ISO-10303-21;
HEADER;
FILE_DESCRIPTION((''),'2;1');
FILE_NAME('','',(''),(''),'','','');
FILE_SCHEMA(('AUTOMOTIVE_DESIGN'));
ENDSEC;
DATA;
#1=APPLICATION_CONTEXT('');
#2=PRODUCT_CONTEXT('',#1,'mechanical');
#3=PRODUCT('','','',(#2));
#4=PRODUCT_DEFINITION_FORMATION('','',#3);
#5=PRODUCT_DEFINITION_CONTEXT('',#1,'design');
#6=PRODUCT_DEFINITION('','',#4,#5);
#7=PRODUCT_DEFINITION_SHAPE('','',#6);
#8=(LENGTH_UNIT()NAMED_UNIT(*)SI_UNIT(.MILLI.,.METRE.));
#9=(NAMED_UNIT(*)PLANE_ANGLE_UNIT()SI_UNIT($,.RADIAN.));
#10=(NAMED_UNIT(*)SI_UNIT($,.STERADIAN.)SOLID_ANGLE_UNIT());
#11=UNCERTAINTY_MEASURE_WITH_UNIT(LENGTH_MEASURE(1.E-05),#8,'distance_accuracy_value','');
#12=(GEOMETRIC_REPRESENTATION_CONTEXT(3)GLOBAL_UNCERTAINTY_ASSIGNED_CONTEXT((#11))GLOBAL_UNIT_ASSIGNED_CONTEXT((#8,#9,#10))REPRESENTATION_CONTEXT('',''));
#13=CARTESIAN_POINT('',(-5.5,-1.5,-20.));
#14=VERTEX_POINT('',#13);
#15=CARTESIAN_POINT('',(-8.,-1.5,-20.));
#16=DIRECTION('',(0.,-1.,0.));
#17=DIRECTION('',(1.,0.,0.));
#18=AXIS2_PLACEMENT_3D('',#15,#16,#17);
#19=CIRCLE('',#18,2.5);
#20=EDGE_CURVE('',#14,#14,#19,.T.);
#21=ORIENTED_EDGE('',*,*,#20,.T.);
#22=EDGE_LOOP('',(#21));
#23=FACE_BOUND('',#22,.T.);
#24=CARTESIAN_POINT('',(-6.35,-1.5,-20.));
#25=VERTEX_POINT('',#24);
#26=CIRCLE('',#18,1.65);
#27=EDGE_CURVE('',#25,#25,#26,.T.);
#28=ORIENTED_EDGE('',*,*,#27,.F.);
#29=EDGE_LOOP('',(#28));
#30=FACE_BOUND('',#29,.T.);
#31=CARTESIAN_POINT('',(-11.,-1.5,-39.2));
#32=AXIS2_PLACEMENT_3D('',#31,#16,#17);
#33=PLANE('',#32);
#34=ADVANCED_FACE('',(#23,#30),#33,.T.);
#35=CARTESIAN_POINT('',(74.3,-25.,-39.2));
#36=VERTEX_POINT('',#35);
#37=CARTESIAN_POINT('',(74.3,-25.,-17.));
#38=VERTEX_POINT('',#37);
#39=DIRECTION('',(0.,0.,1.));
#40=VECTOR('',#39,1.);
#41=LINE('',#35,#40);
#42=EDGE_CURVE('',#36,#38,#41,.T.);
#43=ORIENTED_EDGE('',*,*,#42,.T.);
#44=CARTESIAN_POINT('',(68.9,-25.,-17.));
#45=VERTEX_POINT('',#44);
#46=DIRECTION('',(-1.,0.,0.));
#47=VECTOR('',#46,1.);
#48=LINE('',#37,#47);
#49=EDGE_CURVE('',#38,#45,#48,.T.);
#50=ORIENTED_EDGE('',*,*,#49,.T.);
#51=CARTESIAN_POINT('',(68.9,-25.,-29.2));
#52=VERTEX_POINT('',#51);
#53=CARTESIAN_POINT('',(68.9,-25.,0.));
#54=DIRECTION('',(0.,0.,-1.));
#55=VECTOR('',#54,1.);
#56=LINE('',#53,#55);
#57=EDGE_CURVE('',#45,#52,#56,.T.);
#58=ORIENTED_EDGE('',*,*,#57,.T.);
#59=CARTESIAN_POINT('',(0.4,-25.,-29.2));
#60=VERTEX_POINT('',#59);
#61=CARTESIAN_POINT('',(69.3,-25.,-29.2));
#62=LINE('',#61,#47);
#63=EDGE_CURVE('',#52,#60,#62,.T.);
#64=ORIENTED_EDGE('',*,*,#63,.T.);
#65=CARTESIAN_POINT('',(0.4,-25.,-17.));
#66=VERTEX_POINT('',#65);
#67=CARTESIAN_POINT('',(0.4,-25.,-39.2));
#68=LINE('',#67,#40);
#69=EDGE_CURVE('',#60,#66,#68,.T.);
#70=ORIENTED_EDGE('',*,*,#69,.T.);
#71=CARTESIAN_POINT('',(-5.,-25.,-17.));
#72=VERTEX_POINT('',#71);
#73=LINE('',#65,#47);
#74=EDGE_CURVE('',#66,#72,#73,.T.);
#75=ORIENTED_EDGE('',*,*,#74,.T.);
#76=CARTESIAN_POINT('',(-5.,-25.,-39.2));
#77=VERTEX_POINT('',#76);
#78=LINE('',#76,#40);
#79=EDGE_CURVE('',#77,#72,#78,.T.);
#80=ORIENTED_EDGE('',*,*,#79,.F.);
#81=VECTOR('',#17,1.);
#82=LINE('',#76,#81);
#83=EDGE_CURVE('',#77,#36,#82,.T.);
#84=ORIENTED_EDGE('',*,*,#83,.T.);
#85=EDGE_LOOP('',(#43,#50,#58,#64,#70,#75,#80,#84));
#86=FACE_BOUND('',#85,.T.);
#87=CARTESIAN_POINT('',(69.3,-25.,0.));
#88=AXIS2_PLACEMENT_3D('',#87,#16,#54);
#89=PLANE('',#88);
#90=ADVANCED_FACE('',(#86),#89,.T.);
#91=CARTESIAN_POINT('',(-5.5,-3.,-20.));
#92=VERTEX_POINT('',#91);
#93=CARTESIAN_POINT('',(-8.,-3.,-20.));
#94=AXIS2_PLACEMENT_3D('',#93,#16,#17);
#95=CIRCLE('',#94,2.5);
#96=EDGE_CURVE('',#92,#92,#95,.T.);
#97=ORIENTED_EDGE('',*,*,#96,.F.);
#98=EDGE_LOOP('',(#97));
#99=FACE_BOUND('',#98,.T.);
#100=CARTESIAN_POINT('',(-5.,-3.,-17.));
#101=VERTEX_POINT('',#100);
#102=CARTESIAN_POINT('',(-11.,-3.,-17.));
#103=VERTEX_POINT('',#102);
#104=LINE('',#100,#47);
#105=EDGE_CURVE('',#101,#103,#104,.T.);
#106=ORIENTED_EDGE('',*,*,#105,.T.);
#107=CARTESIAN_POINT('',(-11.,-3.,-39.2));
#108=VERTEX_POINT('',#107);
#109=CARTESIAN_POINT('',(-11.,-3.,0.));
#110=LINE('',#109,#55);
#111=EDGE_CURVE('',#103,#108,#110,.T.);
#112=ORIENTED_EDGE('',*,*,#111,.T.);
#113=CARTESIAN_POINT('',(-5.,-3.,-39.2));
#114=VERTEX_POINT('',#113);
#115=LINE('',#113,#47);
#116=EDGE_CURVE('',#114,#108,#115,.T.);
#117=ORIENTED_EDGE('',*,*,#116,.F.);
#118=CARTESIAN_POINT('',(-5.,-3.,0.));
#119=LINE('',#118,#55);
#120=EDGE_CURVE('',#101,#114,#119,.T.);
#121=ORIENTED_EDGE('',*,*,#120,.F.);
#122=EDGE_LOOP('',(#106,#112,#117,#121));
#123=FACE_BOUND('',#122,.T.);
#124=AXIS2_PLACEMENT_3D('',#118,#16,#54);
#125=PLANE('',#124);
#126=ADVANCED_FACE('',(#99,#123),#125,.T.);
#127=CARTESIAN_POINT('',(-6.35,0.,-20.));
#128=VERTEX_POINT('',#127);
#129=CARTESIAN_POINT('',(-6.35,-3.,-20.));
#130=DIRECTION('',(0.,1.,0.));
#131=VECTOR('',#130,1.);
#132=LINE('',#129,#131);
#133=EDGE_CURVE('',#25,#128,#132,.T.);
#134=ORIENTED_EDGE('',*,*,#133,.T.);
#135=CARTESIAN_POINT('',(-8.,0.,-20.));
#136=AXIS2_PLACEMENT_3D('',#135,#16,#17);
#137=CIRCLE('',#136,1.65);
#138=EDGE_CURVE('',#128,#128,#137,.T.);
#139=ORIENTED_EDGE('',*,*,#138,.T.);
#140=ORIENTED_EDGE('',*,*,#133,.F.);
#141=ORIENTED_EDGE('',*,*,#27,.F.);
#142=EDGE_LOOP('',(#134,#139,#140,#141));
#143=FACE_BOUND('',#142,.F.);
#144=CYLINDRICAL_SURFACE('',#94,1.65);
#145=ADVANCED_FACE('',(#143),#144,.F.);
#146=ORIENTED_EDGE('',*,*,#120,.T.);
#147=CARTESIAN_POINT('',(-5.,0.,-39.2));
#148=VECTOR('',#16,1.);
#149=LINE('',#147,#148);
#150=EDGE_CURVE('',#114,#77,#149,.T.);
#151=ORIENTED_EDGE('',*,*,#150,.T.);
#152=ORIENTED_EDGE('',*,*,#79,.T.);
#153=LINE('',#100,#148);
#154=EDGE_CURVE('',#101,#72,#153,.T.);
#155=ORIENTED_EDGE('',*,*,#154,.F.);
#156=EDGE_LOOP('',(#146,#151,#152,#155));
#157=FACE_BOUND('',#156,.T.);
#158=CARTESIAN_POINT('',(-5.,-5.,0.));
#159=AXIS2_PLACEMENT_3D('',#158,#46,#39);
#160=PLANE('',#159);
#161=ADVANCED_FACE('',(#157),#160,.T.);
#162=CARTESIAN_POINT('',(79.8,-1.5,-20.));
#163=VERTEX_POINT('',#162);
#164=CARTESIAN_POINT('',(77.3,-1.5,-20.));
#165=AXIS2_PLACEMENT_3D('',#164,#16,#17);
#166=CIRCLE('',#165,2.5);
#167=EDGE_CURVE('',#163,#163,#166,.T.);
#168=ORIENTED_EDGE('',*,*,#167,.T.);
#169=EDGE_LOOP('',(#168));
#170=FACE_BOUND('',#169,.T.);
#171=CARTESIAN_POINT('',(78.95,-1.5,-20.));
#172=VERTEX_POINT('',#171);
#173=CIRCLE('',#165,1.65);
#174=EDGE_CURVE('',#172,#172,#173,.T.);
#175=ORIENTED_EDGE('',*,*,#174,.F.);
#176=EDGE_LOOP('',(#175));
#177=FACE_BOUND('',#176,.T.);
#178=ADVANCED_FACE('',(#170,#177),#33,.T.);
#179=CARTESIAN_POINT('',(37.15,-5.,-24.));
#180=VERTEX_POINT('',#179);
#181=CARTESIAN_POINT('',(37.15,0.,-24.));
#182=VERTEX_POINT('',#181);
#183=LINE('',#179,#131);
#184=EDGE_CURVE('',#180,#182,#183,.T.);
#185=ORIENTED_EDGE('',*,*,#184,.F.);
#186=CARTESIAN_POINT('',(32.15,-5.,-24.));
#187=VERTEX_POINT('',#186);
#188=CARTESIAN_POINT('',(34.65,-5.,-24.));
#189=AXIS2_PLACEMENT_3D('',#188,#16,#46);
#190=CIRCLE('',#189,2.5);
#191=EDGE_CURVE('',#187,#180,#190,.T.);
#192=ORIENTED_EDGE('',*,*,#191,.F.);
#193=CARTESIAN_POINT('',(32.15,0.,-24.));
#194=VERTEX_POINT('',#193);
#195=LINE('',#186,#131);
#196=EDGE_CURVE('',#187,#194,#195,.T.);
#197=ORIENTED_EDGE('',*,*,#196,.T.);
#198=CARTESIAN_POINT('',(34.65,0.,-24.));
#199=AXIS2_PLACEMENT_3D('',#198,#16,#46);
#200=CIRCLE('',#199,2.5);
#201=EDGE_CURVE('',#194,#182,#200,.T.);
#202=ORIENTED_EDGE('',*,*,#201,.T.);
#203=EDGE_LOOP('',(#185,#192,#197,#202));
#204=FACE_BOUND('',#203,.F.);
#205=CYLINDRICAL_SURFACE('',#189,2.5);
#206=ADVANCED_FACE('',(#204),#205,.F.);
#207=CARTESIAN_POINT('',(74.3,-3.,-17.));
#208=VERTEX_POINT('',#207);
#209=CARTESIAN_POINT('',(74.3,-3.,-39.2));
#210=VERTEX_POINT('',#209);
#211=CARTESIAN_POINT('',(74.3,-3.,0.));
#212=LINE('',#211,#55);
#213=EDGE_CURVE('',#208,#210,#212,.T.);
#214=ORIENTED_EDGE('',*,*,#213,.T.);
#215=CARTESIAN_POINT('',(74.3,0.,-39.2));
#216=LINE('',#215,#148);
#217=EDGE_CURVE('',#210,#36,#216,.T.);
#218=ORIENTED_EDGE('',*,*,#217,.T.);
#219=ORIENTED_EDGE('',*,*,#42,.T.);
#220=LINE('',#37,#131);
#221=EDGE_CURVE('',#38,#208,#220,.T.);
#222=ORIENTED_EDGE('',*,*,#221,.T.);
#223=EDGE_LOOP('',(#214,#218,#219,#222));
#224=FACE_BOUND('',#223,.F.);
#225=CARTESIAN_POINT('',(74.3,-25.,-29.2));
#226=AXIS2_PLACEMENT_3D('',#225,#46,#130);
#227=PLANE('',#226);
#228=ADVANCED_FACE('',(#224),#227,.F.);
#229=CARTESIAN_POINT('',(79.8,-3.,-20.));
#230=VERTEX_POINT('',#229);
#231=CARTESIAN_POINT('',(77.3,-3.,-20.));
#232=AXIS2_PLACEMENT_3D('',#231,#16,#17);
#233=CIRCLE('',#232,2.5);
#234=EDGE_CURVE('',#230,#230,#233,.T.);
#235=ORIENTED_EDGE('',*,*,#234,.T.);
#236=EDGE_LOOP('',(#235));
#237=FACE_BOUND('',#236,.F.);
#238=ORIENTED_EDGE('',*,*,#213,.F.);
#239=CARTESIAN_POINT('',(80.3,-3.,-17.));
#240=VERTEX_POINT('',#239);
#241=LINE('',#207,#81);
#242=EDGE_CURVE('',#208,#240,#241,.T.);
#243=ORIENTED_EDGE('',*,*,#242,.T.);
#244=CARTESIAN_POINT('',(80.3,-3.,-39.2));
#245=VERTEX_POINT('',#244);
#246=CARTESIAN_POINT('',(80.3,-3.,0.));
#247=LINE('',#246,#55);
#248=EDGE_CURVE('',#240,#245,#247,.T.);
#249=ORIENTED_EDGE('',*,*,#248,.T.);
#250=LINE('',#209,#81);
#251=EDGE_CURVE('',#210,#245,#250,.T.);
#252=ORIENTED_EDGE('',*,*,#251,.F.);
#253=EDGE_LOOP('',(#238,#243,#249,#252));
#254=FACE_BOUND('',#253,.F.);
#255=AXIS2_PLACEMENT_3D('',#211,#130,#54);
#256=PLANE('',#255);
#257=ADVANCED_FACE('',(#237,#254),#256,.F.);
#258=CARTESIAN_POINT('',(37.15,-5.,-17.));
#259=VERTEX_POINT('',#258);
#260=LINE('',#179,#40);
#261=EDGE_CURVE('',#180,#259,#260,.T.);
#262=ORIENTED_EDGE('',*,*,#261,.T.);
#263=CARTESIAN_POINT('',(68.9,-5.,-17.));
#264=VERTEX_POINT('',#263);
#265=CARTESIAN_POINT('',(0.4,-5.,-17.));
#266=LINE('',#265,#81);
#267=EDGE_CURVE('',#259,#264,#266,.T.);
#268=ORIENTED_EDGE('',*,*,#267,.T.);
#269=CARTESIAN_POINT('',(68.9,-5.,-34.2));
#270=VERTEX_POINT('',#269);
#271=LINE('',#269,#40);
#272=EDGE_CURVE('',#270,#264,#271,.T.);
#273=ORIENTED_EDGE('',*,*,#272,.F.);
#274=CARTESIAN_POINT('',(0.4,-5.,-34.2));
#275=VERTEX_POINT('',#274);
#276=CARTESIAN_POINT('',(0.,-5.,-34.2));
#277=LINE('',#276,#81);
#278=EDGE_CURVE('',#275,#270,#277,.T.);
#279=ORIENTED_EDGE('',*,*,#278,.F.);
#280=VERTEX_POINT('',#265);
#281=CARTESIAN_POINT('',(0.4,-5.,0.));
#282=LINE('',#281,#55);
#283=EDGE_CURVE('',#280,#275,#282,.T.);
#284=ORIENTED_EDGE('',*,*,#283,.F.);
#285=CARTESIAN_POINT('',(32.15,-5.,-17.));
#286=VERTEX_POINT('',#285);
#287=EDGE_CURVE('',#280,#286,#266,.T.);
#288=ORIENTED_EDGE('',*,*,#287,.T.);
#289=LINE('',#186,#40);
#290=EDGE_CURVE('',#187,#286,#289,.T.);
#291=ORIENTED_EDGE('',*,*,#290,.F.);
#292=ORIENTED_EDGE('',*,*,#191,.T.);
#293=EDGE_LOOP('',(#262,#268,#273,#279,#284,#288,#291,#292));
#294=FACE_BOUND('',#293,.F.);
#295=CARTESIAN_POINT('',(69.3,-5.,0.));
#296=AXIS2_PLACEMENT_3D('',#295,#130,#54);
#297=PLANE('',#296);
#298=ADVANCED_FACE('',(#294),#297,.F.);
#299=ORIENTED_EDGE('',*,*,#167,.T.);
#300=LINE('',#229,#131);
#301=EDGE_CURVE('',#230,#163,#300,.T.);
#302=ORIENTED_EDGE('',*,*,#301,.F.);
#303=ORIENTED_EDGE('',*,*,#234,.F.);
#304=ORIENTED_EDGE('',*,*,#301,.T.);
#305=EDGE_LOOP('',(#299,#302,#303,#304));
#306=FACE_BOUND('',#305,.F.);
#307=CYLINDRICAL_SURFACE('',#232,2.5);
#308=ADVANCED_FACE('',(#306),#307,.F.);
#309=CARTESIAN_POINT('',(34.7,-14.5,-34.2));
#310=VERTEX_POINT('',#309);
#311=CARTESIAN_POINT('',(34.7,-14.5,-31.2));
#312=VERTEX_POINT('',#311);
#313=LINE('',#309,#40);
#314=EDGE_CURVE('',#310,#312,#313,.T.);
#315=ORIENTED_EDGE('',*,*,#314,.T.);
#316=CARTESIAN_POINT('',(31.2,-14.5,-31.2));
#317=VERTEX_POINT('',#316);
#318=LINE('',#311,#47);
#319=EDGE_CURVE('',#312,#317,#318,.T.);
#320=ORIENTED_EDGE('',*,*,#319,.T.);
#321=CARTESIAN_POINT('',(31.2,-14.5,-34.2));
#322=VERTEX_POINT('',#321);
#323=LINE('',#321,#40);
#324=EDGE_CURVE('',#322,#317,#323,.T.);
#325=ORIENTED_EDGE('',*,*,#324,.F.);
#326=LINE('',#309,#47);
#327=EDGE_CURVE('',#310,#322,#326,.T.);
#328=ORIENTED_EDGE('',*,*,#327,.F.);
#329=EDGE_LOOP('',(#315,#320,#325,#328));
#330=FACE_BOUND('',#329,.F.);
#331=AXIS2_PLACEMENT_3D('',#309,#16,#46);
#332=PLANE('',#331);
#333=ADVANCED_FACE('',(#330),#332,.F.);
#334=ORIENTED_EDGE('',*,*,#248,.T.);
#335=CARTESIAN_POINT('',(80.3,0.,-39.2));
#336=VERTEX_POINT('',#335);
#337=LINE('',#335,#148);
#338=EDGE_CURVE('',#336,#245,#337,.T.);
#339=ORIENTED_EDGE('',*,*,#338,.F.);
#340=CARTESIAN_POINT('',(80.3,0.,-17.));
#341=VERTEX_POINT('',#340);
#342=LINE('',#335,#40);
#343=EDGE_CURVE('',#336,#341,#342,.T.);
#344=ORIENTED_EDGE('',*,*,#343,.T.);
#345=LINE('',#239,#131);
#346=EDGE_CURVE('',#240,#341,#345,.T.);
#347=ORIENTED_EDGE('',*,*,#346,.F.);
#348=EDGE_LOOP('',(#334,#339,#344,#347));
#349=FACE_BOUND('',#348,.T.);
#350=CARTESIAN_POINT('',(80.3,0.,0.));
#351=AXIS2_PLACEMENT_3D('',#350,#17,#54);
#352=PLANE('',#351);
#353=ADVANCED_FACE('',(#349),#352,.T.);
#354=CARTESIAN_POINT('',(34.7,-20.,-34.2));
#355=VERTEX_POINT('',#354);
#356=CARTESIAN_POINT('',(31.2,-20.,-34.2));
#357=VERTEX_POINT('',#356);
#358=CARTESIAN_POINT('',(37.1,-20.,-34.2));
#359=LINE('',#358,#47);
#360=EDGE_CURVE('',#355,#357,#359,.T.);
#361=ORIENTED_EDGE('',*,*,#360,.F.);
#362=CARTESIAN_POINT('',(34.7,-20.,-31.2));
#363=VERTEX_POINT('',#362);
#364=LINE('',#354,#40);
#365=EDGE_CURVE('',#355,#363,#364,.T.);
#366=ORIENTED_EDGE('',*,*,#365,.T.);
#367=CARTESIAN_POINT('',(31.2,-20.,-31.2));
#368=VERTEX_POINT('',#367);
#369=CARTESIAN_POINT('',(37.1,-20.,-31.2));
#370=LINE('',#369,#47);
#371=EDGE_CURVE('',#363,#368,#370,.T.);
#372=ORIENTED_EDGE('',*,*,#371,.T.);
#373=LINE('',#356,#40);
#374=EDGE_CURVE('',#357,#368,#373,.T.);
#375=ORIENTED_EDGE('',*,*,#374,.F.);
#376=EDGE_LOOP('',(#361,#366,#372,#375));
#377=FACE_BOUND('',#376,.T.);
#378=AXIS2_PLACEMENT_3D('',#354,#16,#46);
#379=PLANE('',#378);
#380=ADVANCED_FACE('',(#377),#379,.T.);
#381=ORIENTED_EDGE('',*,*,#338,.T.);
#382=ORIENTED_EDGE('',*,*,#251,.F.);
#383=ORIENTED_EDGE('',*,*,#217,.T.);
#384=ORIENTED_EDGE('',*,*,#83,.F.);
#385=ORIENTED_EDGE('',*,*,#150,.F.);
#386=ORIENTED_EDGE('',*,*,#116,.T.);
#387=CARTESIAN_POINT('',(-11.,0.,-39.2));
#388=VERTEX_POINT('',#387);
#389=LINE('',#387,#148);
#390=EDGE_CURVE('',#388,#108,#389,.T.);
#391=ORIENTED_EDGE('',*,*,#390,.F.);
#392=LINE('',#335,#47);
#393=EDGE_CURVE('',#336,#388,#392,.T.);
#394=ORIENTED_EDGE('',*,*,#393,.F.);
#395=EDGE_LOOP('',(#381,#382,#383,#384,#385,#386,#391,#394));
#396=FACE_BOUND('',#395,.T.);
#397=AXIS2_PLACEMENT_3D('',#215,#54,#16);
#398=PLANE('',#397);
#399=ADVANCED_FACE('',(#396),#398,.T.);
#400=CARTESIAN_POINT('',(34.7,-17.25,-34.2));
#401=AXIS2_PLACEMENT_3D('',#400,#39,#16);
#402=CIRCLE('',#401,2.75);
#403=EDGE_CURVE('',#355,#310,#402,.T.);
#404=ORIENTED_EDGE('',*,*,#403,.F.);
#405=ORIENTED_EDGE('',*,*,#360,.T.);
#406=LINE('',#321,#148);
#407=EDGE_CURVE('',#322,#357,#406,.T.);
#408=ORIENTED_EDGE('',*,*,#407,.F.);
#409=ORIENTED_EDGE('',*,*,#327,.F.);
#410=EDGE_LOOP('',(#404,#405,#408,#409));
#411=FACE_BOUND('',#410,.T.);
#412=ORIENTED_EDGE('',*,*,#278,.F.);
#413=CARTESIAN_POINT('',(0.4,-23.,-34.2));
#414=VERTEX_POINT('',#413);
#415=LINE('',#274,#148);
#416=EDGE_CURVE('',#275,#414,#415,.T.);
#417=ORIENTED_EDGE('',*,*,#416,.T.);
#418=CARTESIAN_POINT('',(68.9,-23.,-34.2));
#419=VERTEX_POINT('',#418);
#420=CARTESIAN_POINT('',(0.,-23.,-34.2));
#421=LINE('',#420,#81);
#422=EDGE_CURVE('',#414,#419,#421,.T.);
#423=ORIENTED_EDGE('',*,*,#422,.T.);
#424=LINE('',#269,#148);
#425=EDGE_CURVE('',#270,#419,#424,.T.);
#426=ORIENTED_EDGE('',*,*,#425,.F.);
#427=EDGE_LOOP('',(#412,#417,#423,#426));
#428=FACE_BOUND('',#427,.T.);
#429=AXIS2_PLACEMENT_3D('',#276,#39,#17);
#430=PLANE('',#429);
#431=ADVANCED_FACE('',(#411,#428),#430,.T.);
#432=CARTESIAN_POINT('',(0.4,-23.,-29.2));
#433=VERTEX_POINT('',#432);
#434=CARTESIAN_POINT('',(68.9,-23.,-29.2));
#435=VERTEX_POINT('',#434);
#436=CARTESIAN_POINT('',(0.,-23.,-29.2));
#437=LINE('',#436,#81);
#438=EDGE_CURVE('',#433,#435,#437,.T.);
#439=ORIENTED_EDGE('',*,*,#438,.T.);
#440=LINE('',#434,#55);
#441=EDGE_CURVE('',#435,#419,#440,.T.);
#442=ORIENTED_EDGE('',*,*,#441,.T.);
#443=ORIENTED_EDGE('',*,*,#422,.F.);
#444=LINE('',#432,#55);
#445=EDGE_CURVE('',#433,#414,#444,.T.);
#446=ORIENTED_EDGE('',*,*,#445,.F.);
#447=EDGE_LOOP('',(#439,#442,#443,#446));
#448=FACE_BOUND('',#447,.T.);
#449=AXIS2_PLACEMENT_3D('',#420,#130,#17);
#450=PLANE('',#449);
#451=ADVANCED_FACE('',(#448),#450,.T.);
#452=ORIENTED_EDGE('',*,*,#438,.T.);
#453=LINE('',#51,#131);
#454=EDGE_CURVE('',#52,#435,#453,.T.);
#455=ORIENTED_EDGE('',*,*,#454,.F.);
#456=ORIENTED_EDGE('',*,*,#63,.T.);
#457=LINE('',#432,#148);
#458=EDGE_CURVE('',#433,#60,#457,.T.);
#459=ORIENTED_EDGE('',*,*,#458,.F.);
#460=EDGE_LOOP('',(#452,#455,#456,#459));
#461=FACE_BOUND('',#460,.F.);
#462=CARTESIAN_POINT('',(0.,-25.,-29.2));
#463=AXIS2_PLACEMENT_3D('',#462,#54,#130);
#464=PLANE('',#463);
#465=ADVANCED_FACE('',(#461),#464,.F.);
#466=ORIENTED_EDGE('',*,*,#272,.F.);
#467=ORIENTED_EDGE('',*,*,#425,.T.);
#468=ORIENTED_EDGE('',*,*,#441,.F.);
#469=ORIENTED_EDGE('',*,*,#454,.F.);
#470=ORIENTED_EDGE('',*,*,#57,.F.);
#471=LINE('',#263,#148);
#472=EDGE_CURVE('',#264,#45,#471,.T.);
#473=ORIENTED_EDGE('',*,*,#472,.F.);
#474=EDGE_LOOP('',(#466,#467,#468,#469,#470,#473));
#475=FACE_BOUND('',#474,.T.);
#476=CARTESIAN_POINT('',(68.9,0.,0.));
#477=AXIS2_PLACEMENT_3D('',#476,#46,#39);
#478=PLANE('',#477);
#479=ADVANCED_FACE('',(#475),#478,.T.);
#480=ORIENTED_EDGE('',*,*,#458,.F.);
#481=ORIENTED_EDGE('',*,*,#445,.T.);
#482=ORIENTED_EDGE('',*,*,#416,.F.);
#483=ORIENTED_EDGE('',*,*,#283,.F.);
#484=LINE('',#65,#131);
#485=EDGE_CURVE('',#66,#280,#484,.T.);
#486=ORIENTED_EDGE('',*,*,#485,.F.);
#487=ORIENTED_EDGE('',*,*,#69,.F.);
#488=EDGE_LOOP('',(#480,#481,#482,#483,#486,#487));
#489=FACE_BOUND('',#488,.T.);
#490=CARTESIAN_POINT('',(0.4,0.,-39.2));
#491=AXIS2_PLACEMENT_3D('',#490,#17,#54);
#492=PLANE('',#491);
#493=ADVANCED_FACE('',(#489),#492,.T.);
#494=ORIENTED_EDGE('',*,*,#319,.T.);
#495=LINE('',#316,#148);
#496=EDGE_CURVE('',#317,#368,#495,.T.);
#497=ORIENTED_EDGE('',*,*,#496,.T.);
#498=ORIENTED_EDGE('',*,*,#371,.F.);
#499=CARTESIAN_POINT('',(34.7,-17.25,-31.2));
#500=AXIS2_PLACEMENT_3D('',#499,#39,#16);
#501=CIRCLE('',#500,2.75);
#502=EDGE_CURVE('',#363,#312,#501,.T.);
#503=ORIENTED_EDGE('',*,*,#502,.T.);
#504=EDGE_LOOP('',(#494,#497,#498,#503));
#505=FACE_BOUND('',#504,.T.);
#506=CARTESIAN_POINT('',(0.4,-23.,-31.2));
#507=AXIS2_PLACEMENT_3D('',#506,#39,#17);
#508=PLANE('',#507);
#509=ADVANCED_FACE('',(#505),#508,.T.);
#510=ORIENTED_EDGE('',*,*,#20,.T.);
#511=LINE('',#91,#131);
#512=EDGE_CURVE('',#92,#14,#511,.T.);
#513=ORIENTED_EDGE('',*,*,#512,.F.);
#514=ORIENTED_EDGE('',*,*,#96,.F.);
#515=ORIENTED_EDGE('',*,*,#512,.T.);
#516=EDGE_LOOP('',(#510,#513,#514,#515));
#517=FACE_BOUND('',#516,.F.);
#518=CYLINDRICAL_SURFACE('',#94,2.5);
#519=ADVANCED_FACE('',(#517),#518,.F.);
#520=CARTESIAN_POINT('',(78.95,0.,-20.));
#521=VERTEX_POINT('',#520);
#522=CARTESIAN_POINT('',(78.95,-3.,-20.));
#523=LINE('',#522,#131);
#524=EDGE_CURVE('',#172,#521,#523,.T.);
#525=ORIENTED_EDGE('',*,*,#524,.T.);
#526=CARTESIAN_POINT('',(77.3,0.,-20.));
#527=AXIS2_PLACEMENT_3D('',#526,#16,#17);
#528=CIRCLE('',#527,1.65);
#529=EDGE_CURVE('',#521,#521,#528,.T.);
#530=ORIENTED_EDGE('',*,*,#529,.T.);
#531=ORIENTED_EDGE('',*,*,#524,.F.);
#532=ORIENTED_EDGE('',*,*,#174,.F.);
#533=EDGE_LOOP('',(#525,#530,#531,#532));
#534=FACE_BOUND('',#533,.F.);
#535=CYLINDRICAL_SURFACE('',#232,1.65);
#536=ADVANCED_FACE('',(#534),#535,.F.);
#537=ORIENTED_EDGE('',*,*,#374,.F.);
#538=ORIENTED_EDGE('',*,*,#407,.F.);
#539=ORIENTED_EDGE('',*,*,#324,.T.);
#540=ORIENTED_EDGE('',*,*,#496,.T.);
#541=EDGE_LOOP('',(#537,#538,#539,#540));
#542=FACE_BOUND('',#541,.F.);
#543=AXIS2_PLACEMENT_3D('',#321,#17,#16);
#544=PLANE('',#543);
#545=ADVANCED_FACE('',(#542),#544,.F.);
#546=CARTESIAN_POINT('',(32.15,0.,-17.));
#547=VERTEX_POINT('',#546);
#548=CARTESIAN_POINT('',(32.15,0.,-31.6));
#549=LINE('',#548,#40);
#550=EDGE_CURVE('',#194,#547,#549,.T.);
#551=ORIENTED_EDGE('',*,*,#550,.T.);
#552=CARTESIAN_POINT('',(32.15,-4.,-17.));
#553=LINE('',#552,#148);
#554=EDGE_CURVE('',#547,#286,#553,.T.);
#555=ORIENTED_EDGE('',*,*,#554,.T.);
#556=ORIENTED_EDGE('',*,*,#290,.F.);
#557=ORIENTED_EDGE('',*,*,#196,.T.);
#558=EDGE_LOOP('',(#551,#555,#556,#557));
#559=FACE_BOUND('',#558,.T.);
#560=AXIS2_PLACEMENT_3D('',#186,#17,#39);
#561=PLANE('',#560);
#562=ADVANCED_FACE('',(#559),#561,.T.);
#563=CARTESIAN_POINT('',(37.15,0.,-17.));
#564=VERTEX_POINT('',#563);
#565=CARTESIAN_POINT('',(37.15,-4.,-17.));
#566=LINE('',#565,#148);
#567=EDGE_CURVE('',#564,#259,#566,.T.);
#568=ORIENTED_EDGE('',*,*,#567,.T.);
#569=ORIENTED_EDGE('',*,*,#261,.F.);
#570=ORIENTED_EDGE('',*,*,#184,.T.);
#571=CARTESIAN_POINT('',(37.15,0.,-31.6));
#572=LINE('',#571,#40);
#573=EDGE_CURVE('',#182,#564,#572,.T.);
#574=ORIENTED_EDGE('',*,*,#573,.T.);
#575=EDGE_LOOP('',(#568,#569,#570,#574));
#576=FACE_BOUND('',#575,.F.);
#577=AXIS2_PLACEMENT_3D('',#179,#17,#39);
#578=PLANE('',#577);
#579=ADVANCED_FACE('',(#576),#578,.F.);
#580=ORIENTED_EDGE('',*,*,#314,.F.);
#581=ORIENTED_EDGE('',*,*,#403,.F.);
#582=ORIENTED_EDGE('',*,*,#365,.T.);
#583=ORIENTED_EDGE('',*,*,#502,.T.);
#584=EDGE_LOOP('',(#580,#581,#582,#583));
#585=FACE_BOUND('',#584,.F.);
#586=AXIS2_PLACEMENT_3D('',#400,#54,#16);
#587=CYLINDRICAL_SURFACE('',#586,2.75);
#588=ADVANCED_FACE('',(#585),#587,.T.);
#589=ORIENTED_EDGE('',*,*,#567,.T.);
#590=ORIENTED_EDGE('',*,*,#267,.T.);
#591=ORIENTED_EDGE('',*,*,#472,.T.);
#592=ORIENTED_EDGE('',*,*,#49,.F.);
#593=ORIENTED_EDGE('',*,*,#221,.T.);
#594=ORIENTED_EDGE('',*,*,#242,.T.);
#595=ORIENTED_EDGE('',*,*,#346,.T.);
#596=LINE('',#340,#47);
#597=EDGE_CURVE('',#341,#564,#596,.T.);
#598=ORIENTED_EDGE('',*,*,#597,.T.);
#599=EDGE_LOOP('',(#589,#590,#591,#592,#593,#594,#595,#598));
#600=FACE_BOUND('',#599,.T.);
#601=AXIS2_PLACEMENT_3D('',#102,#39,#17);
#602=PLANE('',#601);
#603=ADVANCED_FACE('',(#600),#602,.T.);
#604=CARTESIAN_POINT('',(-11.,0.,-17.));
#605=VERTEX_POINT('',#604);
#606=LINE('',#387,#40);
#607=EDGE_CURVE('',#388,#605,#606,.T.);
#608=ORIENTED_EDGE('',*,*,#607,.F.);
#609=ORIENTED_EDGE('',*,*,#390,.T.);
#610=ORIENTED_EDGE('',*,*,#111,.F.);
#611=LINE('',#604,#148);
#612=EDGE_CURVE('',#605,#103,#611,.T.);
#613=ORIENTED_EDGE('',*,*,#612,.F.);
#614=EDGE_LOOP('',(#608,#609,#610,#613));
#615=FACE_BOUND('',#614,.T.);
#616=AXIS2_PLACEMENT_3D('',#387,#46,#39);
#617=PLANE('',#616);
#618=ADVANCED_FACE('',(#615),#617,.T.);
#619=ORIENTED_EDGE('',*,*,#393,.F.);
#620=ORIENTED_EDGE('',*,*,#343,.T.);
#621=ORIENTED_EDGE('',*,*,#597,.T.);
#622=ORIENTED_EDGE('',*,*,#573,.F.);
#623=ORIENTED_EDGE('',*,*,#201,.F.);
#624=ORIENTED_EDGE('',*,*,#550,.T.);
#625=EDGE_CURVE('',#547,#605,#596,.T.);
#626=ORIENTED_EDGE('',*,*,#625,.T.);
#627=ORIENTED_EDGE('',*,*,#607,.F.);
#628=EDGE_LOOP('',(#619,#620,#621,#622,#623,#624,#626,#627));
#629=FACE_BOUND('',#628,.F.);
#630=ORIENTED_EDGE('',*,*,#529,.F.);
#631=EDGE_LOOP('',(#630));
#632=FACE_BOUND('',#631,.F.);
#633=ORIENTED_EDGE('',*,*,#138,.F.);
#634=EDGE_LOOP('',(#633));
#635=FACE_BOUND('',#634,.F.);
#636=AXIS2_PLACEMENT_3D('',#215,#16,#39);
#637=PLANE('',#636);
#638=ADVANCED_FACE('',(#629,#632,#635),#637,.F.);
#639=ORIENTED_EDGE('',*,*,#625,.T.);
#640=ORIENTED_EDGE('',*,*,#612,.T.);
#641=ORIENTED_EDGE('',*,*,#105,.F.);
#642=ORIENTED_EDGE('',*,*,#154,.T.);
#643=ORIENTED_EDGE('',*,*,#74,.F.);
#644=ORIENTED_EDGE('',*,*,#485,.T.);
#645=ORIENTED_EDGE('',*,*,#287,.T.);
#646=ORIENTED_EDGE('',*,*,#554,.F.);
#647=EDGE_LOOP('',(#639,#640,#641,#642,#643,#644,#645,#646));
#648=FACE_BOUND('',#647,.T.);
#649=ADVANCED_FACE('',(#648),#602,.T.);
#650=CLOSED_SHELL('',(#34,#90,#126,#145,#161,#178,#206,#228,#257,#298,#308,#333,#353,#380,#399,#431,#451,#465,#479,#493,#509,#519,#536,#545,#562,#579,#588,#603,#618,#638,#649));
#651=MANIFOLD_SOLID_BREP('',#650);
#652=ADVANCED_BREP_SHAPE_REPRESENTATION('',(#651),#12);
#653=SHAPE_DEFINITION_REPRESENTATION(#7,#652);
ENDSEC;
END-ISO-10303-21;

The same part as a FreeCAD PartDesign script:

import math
import FreeCAD as App
import Part
import Sketcher

V = App.Vector
Q = App.Units.Quantity


def add_polygon(sketch, points):
    """Adds a closed chain of lines whose ends are joined by coincident constraints."""
    first, n = sketch.GeometryCount, len(points)
    for a, b in zip(points, points[1:] + points[:1]):
        sketch.addGeometry(Part.LineSegment(App.Vector(*a, 0), App.Vector(*b, 0)), False)
    for i in range(n):
        sketch.addConstraint(Sketcher.Constraint("Coincident", first + i, 2, first + (i + 1) % n, 1))

doc = App.newDocument("Part")
body = doc.addObject("PartDesign::Body", "Body")

sketch1 = doc.addObject("Sketcher::SketchObject", "Sketch")
body.addObject(sketch1)
sketch1.AttachmentSupport = (doc.XZ_Plane, [""])
sketch1.MapMode = "FlatFace"
add_polygon(sketch1, [(0, -39), (0, 0), (69, 0), (69, -39)])
sketch1.addConstraint(Sketcher.Constraint("Vertical", 0))
sketch1.addConstraint(Sketcher.Constraint("Horizontal", 1))
sketch1.addConstraint(Sketcher.Constraint("Vertical", 2))
sketch1.addConstraint(Sketcher.Constraint("Horizontal", 3))
sketch1.addConstraint(Sketcher.Constraint("Coincident", 0, 2, -1, 1))
sketch1.addConstraint(Sketcher.Constraint("DistanceX", 1, 1, 1, 2, Q("69.3 mm")))
sketch1.addConstraint(Sketcher.Constraint("DistanceY", 0, 1, 0, 2, Q("39.2 mm")))
pad1 = doc.addObject("PartDesign::Pad", "Pad")
body.addObject(pad1)
pad1.Profile = sketch1
pad1.Length = 5

sketch2 = doc.addObject("Sketcher::SketchObject", "Sketch001")
body.addObject(sketch2)
sketch2.AttachmentSupport = (doc.XZ_Plane, [""])
sketch2.MapMode = "FlatFace"
sketch2.AttachmentOffset = App.Placement(V(0, 0, 5), App.Rotation())
add_polygon(sketch2, [(69, -34), (0, -34), (0, -39), (69, -39)])
sketch2.addConstraint(Sketcher.Constraint("Horizontal", 0))
sketch2.addConstraint(Sketcher.Constraint("Vertical", 1))
sketch2.addConstraint(Sketcher.Constraint("Horizontal", 2))
sketch2.addConstraint(Sketcher.Constraint("Vertical", 3))
sketch2.addConstraint(Sketcher.Constraint("PointOnObject", 0, 2, -2))
sketch2.addConstraint(Sketcher.Constraint("DistanceY", 1, 2, 1, 1, Q("5 mm")))
sketch2.addConstraint(Sketcher.Constraint("DistanceX", 0, 2, 0, 1, Q("69.3 mm")))
sketch2.addConstraint(Sketcher.Constraint("DistanceY", 0, 2, -1, 1, Q("34.2 mm")))
pad2 = doc.addObject("PartDesign::Pad", "Pad001")
body.addObject(pad2)
pad2.Profile = sketch2
pad2.Length = 20

sketch3 = doc.addObject("Sketcher::SketchObject", "Sketch002")
body.addObject(sketch3)
sketch3.AttachmentSupport = (doc.XY_Plane, [""])
sketch3.MapMode = "FlatFace"
sketch3.AttachmentOffset = App.Placement(V(0, 0, -34.2), App.Rotation())
add_polygon(sketch3, [(69.3, -23), (0, -23), (0, -25), (69.3, -25)])
sketch3.addConstraint(Sketcher.Constraint("Horizontal", 0))
sketch3.addConstraint(Sketcher.Constraint("Vertical", 1))
sketch3.addConstraint(Sketcher.Constraint("Horizontal", 2))
sketch3.addConstraint(Sketcher.Constraint("Vertical", 3))
sketch3.addConstraint(Sketcher.Constraint("PointOnObject", 0, 2, -2))
sketch3.addConstraint(Sketcher.Constraint("DistanceY", 1, 2, 1, 1, Q("2 mm")))
sketch3.addConstraint(Sketcher.Constraint("DistanceX", 0, 2, 0, 1, Q("69.3 mm")))
sketch3.addConstraint(Sketcher.Constraint("DistanceY", 0, 2, -1, 1, Q("23 mm")))
pad3 = doc.addObject("PartDesign::Pad", "Pad002")
body.addObject(pad3)
pad3.Profile = sketch3
pad3.Length = 5

sketch4 = doc.addObject("Sketcher::SketchObject", "Sketch003")
body.addObject(sketch4)
sketch4.AttachmentSupport = (doc.YZ_Plane, [""])
sketch4.MapMode = "FlatFace"
sketch4.AttachmentOffset = App.Placement(V(0, 0, 69.3), App.Rotation())
add_polygon(sketch4, [(-25, -29), (-25, -39), (0, -39), (0, -29)])
sketch4.addConstraint(Sketcher.Constraint("Vertical", 0))
sketch4.addConstraint(Sketcher.Constraint("Horizontal", 1))
sketch4.addConstraint(Sketcher.Constraint("Vertical", 2))
sketch4.addConstraint(Sketcher.Constraint("Horizontal", 3))
sketch4.addConstraint(Sketcher.Constraint("PointOnObject", 1, 2, -2))
sketch4.addConstraint(Sketcher.Constraint("DistanceX", 1, 1, 1, 2, Q("25 mm")))
sketch4.addConstraint(Sketcher.Constraint("DistanceY", 0, 2, 0, 1, Q("10 mm")))
sketch4.addConstraint(Sketcher.Constraint("DistanceY", 0, 2, -1, 1, Q("39.2 mm")))
pad4 = doc.addObject("PartDesign::Pad", "Pad003")
body.addObject(pad4)
pad4.Profile = sketch4
pad4.Length = 5

sketch5 = doc.addObject("Sketcher::SketchObject", "Sketch004")
body.addObject(sketch5)
sketch5.AttachmentSupport = (doc.YZ_Plane, [""])
sketch5.MapMode = "FlatFace"
sketch5.AttachmentOffset = App.Placement(V(0, 0, 69.3), App.Rotation())
add_polygon(sketch5, [(0, -29), (0, 0), (-5, 0), (-5, -29)])
sketch5.addConstraint(Sketcher.Constraint("Vertical", 0))
sketch5.addConstraint(Sketcher.Constraint("Horizontal", 1))
sketch5.addConstraint(Sketcher.Constraint("Vertical", 2))
sketch5.addConstraint(Sketcher.Constraint("Horizontal", 3))
sketch5.addConstraint(Sketcher.Constraint("Coincident", 0, 2, -1, 1))
sketch5.addConstraint(Sketcher.Constraint("DistanceX", 1, 2, 1, 1, Q("5 mm")))
sketch5.addConstraint(Sketcher.Constraint("DistanceY", 0, 1, 0, 2, Q("29.2 mm")))
pad5 = doc.addObject("PartDesign::Pad", "Pad004")
body.addObject(pad5)
pad5.Profile = sketch5
pad5.Length = 5

sketch6 = doc.addObject("Sketcher::SketchObject", "Sketch005")
body.addObject(sketch6)
sketch6.AttachmentSupport = (doc.XY_Plane, [""])
sketch6.MapMode = "FlatFace"
sketch6.AttachmentOffset = App.Placement(V(0, 0, -29.2), App.Rotation())
add_polygon(sketch6, [(69, -5), (69, -25), (74, -25), (74, -5)])
sketch6.addConstraint(Sketcher.Constraint("Vertical", 0))
sketch6.addConstraint(Sketcher.Constraint("Horizontal", 1))
sketch6.addConstraint(Sketcher.Constraint("Vertical", 2))
sketch6.addConstraint(Sketcher.Constraint("Horizontal", 3))
sketch6.addConstraint(Sketcher.Constraint("DistanceX", 1, 1, 1, 2, Q("5 mm")))
sketch6.addConstraint(Sketcher.Constraint("DistanceY", 0, 2, 0, 1, Q("20 mm")))
sketch6.addConstraint(Sketcher.Constraint("DistanceY", 0, 2, -1, 1, Q("25 mm")))
sketch6.addConstraint(Sketcher.Constraint("DistanceX", -1, 1, 0, 2, Q("69.3 mm")))
pad6 = doc.addObject("PartDesign::Pad", "Pad005")
body.addObject(pad6)
pad6.Profile = sketch6
pad6.Length = 29.2

sketch7 = doc.addObject("Sketcher::SketchObject", "Sketch006")
body.addObject(sketch7)
sketch7.AttachmentSupport = (doc.YZ_Plane, [""])
sketch7.MapMode = "FlatFace"
add_polygon(sketch7, [(-25, -39), (-25, -29), (0, -29), (0, -39)])
sketch7.addConstraint(Sketcher.Constraint("Vertical", 0))
sketch7.addConstraint(Sketcher.Constraint("Horizontal", 1))
sketch7.addConstraint(Sketcher.Constraint("Vertical", 2))
sketch7.addConstraint(Sketcher.Constraint("Horizontal", 3))
sketch7.addConstraint(Sketcher.Constraint("PointOnObject", 1, 2, -2))
sketch7.addConstraint(Sketcher.Constraint("DistanceX", 1, 1, 1, 2, Q("25 mm")))
sketch7.addConstraint(Sketcher.Constraint("DistanceY", 0, 1, 0, 2, Q("10 mm")))
sketch7.addConstraint(Sketcher.Constraint("DistanceY", 0, 2, -1, 1, Q("29.2 mm")))
pad7 = doc.addObject("PartDesign::Pad", "Pad006")
body.addObject(pad7)
pad7.Profile = sketch7
pad7.Length = 5
pad7.Reversed = True

sketch8 = doc.addObject("Sketcher::SketchObject", "Sketch007")
body.addObject(sketch8)
sketch8.AttachmentSupport = (doc.YZ_Plane, [""])
sketch8.MapMode = "FlatFace"
add_polygon(sketch8, [(0, 0), (0, -29), (-25, -29), (-25, 0)])
sketch8.addConstraint(Sketcher.Constraint("Vertical", 0))
sketch8.addConstraint(Sketcher.Constraint("Horizontal", 1))
sketch8.addConstraint(Sketcher.Constraint("Vertical", 2))
sketch8.addConstraint(Sketcher.Constraint("Horizontal", 3))
sketch8.addConstraint(Sketcher.Constraint("Coincident", 3, 2, -1, 1))
sketch8.addConstraint(Sketcher.Constraint("DistanceX", 1, 2, 1, 1, Q("25 mm")))
sketch8.addConstraint(Sketcher.Constraint("DistanceY", 0, 2, 0, 1, Q("29.2 mm")))
pad8 = doc.addObject("PartDesign::Pad", "Pad007")
body.addObject(pad8)
pad8.Profile = sketch8
pad8.Length = 5
pad8.Reversed = True

sketch9 = doc.addObject("Sketcher::SketchObject", "Sketch008")
body.addObject(sketch9)
sketch9.AttachmentSupport = (doc.YZ_Plane, [""])
sketch9.MapMode = "FlatFace"
sketch9.AttachmentOffset = App.Placement(V(0, 0, -5), App.Rotation())
add_polygon(sketch9, [(-3, 0), (0, 0), (0, -39.2), (-3, -39.2)])
sketch9.addConstraint(Sketcher.Constraint("Horizontal", 0))
sketch9.addConstraint(Sketcher.Constraint("Vertical", 1))
sketch9.addConstraint(Sketcher.Constraint("Horizontal", 2))
sketch9.addConstraint(Sketcher.Constraint("Vertical", 3))
sketch9.addConstraint(Sketcher.Constraint("Coincident", 0, 2, -1, 1))
sketch9.addConstraint(Sketcher.Constraint("DistanceX", 0, 1, 0, 2, Q("3 mm")))
sketch9.addConstraint(Sketcher.Constraint("DistanceY", 1, 2, 1, 1, Q("39.2 mm")))
pad9 = doc.addObject("PartDesign::Pad", "Pad008")
body.addObject(pad9)
pad9.Profile = sketch9
pad9.Length = 6
pad9.Reversed = True

sketch10 = doc.addObject("Sketcher::SketchObject", "Sketch009")
body.addObject(sketch10)
sketch10.AttachmentSupport = (doc.YZ_Plane, [""])
sketch10.MapMode = "FlatFace"
sketch10.AttachmentOffset = App.Placement(V(0, 0, 74.3), App.Rotation())
add_polygon(sketch10, [(0, -39.2), (0, 0), (-3, 0), (-3, -39.2)])
sketch10.addConstraint(Sketcher.Constraint("Vertical", 0))
sketch10.addConstraint(Sketcher.Constraint("Horizontal", 1))
sketch10.addConstraint(Sketcher.Constraint("Vertical", 2))
sketch10.addConstraint(Sketcher.Constraint("Horizontal", 3))
sketch10.addConstraint(Sketcher.Constraint("Coincident", 0, 2, -1, 1))
sketch10.addConstraint(Sketcher.Constraint("DistanceX", 1, 2, 1, 1, Q("3 mm")))
sketch10.addConstraint(Sketcher.Constraint("DistanceY", 0, 1, 0, 2, Q("39.2 mm")))
pad10 = doc.addObject("PartDesign::Pad", "Pad009")
body.addObject(pad10)
pad10.Profile = sketch10
pad10.Length = 6

sketch11 = doc.addObject("Sketcher::SketchObject", "Sketch010")
body.addObject(sketch11)
sketch11.AttachmentSupport = (doc.XZ_Plane, [""])
sketch11.MapMode = "FlatFace"
sketch11.AttachmentOffset = App.Placement(V(0, 0, 5), App.Rotation())
sketch11.addGeometry(Part.LineSegment(V(32.1, 0, 0), V(32.1, -24, 0)), False)
sketch11.addGeometry(Part.ArcOfCircle(Part.Circle(V(34.6, -24, 0), V(0, 0, 1), 2.5), math.radians(180), math.radians(360)), False)
sketch11.addGeometry(Part.LineSegment(V(37.1, -24, 0), V(37.1, 0, 0)), False)
sketch11.addGeometry(Part.LineSegment(V(37.1, 0, 0), V(32.1, 0, 0)), False)
sketch11.addConstraint(Sketcher.Constraint("Tangent", 0, 2, 1, 1))
sketch11.addConstraint(Sketcher.Constraint("Tangent", 1, 2, 2, 1))
sketch11.addConstraint(Sketcher.Constraint("Coincident", 2, 2, 3, 1))
sketch11.addConstraint(Sketcher.Constraint("Coincident", 3, 2, 0, 1))
sketch11.addConstraint(Sketcher.Constraint("Vertical", 0))
sketch11.addConstraint(Sketcher.Constraint("Vertical", 2))
sketch11.addConstraint(Sketcher.Constraint("Horizontal", 3))
sketch11.addConstraint(Sketcher.Constraint("PointOnObject", 2, 2, -1))
sketch11.addConstraint(Sketcher.Constraint("Radius", 1, Q("2.5 mm")))
sketch11.addConstraint(Sketcher.Constraint("DistanceY", 0, 2, 0, 1, Q("24 mm")))
sketch11.addConstraint(Sketcher.Constraint("DistanceX", -1, 1, 1, 3, Q("34.65 mm")))
pocket1 = doc.addObject("PartDesign::Pocket", "Pocket")
body.addObject(pocket1)
pocket1.Profile = sketch11
pocket1.Type = "ThroughAll"

sketch12 = doc.addObject("Sketcher::SketchObject", "Sketch011")
body.addObject(sketch12)
sketch12.AttachmentSupport = (doc.YZ_Plane, [""])
sketch12.MapMode = "FlatFace"
add_polygon(sketch12, [(-25, 0), (-25, -29.2), (-23, -29.2), (-23, -34.2), (-5, -34.2), (-5, 0)])
sketch12.addConstraint(Sketcher.Constraint("Vertical", 0))
sketch12.addConstraint(Sketcher.Constraint("Horizontal", 1))
sketch12.addConstraint(Sketcher.Constraint("Vertical", 2))
sketch12.addConstraint(Sketcher.Constraint("Horizontal", 3))
sketch12.addConstraint(Sketcher.Constraint("Vertical", 4))
sketch12.addConstraint(Sketcher.Constraint("Horizontal", 5))
sketch12.addConstraint(Sketcher.Constraint("PointOnObject", 4, 2, -1))
sketch12.addConstraint(Sketcher.Constraint("DistanceX", 1, 1, 1, 2, Q("2 mm")))
sketch12.addConstraint(Sketcher.Constraint("DistanceX", 3, 1, 3, 2, Q("18 mm")))
sketch12.addConstraint(Sketcher.Constraint("DistanceY", 2, 2, 2, 1, Q("5 mm")))
sketch12.addConstraint(Sketcher.Constraint("DistanceY", 0, 2, 0, 1, Q("29.2 mm")))
sketch12.addConstraint(Sketcher.Constraint("DistanceX", 0, 2, -1, 1, Q("25 mm")))
pad11 = doc.addObject("PartDesign::Pad", "Pad010")
body.addObject(pad11)
pad11.Profile = sketch12
pad11.Length = 0.4

sketch13 = doc.addObject("Sketcher::SketchObject", "Sketch012")
body.addObject(sketch13)
sketch13.AttachmentSupport = (doc.YZ_Plane, [""])
sketch13.MapMode = "FlatFace"
sketch13.AttachmentOffset = App.Placement(V(0, 0, 69.3), App.Rotation())
add_polygon(sketch13, [(-5, 0), (-5, -34.2), (-23, -34.2), (-23, -29.2), (-25, -29.2), (-25, 0)])
sketch13.addConstraint(Sketcher.Constraint("Vertical", 0))
sketch13.addConstraint(Sketcher.Constraint("Horizontal", 1))
sketch13.addConstraint(Sketcher.Constraint("Vertical", 2))
sketch13.addConstraint(Sketcher.Constraint("Horizontal", 3))
sketch13.addConstraint(Sketcher.Constraint("Vertical", 4))
sketch13.addConstraint(Sketcher.Constraint("Horizontal", 5))
sketch13.addConstraint(Sketcher.Constraint("PointOnObject", 4, 2, -1))
sketch13.addConstraint(Sketcher.Constraint("DistanceX", 1, 2, 1, 1, Q("18 mm")))
sketch13.addConstraint(Sketcher.Constraint("DistanceX", 3, 2, 3, 1, Q("2 mm")))
sketch13.addConstraint(Sketcher.Constraint("DistanceY", 2, 1, 2, 2, Q("5 mm")))
sketch13.addConstraint(Sketcher.Constraint("DistanceY", 0, 2, 0, 1, Q("34.2 mm")))
sketch13.addConstraint(Sketcher.Constraint("DistanceX", 0, 2, -1, 1, Q("5 mm")))
pad12 = doc.addObject("PartDesign::Pad", "Pad011")
body.addObject(pad12)
pad12.Profile = sketch13
pad12.Length = 0.4
pad12.Reversed = True

sketch14 = doc.addObject("Sketcher::SketchObject", "Sketch013")
body.addObject(sketch14)
sketch14.AttachmentSupport = (doc.XY_Plane, [""])
sketch14.MapMode = "FlatFace"
sketch14.AttachmentOffset = App.Placement(V(0, 0, -34.2), App.Rotation())
sketch14.addGeometry(Part.LineSegment(V(31.2, -14.5, 0), V(31.2, -20, 0)), False)
sketch14.addGeometry(Part.LineSegment(V(31.2, -20, 0), V(34.7, -20, 0)), False)
sketch14.addGeometry(Part.ArcOfCircle(Part.Circle(V(34.7, -17.2, 0), V(0, 0, 1), 2.8), math.radians(-90), math.radians(90)), False)
sketch14.addGeometry(Part.LineSegment(V(34.7, -14.5, 0), V(31.2, -14.5, 0)), False)
sketch14.addConstraint(Sketcher.Constraint("Coincident", 0, 2, 1, 1))
sketch14.addConstraint(Sketcher.Constraint("Tangent", 1, 2, 2, 1))
sketch14.addConstraint(Sketcher.Constraint("Tangent", 2, 2, 3, 1))
sketch14.addConstraint(Sketcher.Constraint("Coincident", 3, 2, 0, 1))
sketch14.addConstraint(Sketcher.Constraint("Vertical", 0))
sketch14.addConstraint(Sketcher.Constraint("Horizontal", 1))
sketch14.addConstraint(Sketcher.Constraint("Horizontal", 3))
sketch14.addConstraint(Sketcher.Constraint("Radius", 2, Q("2.75 mm")))
sketch14.addConstraint(Sketcher.Constraint("DistanceX", 1, 1, 1, 2, Q("3.5 mm")))
sketch14.addConstraint(Sketcher.Constraint("DistanceY", 0, 2, -1, 1, Q("20 mm")))
sketch14.addConstraint(Sketcher.Constraint("DistanceX", -1, 1, 2, 3, Q("34.7 mm")))
pad13 = doc.addObject("PartDesign::Pad", "Pad012")
body.addObject(pad13)
pad13.Profile = sketch14
pad13.Length = 3

sketch15 = doc.addObject("Sketcher::SketchObject", "Sketch014")
body.addObject(sketch15)
sketch15.AttachmentSupport = (doc.XY_Plane, [""])
sketch15.MapMode = "FlatFace"
add_polygon(sketch15, [(-11, -3), (-5, -3), (-5, -25), (0.4, -25), (0.4, -5), (68.9, -5), (68.9, -25), (74.3, -25), (74.3, -3), (80.3, -3), (80.3, 0), (-11, 0)])
sketch15.addConstraint(Sketcher.Constraint("Horizontal", 0))
sketch15.addConstraint(Sketcher.Constraint("Vertical", 1))
sketch15.addConstraint(Sketcher.Constraint("Horizontal", 2))
sketch15.addConstraint(Sketcher.Constraint("Vertical", 3))
sketch15.addConstraint(Sketcher.Constraint("Horizontal", 4))
sketch15.addConstraint(Sketcher.Constraint("Vertical", 5))
sketch15.addConstraint(Sketcher.Constraint("Horizontal", 6))
sketch15.addConstraint(Sketcher.Constraint("Vertical", 7))
sketch15.addConstraint(Sketcher.Constraint("Horizontal", 8))
sketch15.addConstraint(Sketcher.Constraint("Vertical", 9))
sketch15.addConstraint(Sketcher.Constraint("Horizontal", 10))
sketch15.addConstraint(Sketcher.Constraint("Vertical", 11))
sketch15.addConstraint(Sketcher.Constraint("PointOnObject", 9, 2, -1))
sketch15.addConstraint(Sketcher.Constraint("Horizontal", 2, 2, 5, 2))
sketch15.addConstraint(Sketcher.Constraint("Horizontal", 0, 2, 7, 2))
sketch15.addConstraint(Sketcher.Constraint("Equal", 2, 6))
sketch15.addConstraint(Sketcher.Constraint("Equal", 0, 8))
sketch15.addConstraint(Sketcher.Constraint("DistanceX", 0, 1, 0, 2, Q("6 mm")))
sketch15.addConstraint(Sketcher.Constraint("DistanceY", 1, 2, 1, 1, Q("22 mm")))
sketch15.addConstraint(Sketcher.Constraint("DistanceY", 3, 1, 3, 2, Q("20 mm")))
sketch15.addConstraint(Sketcher.Constraint("DistanceY", 9, 1, 9, 2, Q("3 mm")))
sketch15.addConstraint(Sketcher.Constraint("DistanceX", 2, 1, 2, 2, Q("5.4 mm")))
sketch15.addConstraint(Sketcher.Constraint("DistanceX", 4, 1, 4, 2, Q("68.5 mm")))
sketch15.addConstraint(Sketcher.Constraint("DistanceX", 0, 2, -1, 1, Q("5 mm")))
pocket2 = doc.addObject("PartDesign::Pocket", "Pocket001")
body.addObject(pocket2)
pocket2.Profile = sketch15
pocket2.Length = 17

sketch16 = doc.addObject("Sketcher::SketchObject", "Sketch015")
body.addObject(sketch16)
sketch16.AttachmentSupport = (doc.XZ_Plane, [""])
sketch16.MapMode = "FlatFace"
sketch16.AttachmentOffset = App.Placement(V(0, 0, 3), App.Rotation())
sketch16.addGeometry(Part.Circle(V(-8, -20, 0), V(0, 0, 1), 1.6), False)
sketch16.addGeometry(Part.Circle(V(77.3, -20, 0), V(0, 0, 1), 1.6), False)
sketch16.addConstraint(Sketcher.Constraint("Equal", 0, 1))
sketch16.addConstraint(Sketcher.Constraint("Horizontal", 0, 3, 1, 3))
sketch16.addConstraint(Sketcher.Constraint("Diameter", 0, Q("3.3 mm")))
sketch16.addConstraint(Sketcher.Constraint("DistanceX", 0, 3, -1, 1, Q("8 mm")))
sketch16.addConstraint(Sketcher.Constraint("DistanceY", 0, 3, -1, 1, Q("20 mm")))
sketch16.addConstraint(Sketcher.Constraint("DistanceX", -1, 1, 1, 3, Q("77.3 mm")))
pocket3 = doc.addObject("PartDesign::Pocket", "Pocket002")
body.addObject(pocket3)
pocket3.Profile = sketch16
pocket3.Type = "ThroughAll"

sketch17 = doc.addObject("Sketcher::SketchObject", "Sketch016")
body.addObject(sketch17)
sketch17.AttachmentSupport = (doc.XZ_Plane, [""])
sketch17.MapMode = "FlatFace"
sketch17.AttachmentOffset = App.Placement(V(0, 0, 3), App.Rotation())
sketch17.addGeometry(Part.Circle(V(-8, -20, 0), V(0, 0, 1), 2.5), False)
sketch17.addGeometry(Part.Circle(V(77.3, -20, 0), V(0, 0, 1), 2.5), False)
sketch17.addGeometry(Part.Circle(V(77.3, -20, 0), V(0, 0, 1), 1.6), False)
sketch17.addConstraint(Sketcher.Constraint("Coincident", 2, 3, 1, 3))
sketch17.addConstraint(Sketcher.Constraint("Equal", 0, 1))
sketch17.addConstraint(Sketcher.Constraint("Horizontal", 0, 3, 1, 3))
sketch17.addConstraint(Sketcher.Constraint("Diameter", 0, Q("5 mm")))
sketch17.addConstraint(Sketcher.Constraint("Diameter", 2, Q("3.3 mm")))
sketch17.addConstraint(Sketcher.Constraint("DistanceX", 0, 3, -1, 1, Q("8 mm")))
sketch17.addConstraint(Sketcher.Constraint("DistanceY", 0, 3, -1, 1, Q("20 mm")))
sketch17.addConstraint(Sketcher.Constraint("DistanceX", -1, 1, 1, 3, Q("77.3 mm")))
pocket4 = doc.addObject("PartDesign::Pocket", "Pocket003")
body.addObject(pocket4)
pocket4.Profile = sketch17
pocket4.Length = 1.5

doc.recompute()
